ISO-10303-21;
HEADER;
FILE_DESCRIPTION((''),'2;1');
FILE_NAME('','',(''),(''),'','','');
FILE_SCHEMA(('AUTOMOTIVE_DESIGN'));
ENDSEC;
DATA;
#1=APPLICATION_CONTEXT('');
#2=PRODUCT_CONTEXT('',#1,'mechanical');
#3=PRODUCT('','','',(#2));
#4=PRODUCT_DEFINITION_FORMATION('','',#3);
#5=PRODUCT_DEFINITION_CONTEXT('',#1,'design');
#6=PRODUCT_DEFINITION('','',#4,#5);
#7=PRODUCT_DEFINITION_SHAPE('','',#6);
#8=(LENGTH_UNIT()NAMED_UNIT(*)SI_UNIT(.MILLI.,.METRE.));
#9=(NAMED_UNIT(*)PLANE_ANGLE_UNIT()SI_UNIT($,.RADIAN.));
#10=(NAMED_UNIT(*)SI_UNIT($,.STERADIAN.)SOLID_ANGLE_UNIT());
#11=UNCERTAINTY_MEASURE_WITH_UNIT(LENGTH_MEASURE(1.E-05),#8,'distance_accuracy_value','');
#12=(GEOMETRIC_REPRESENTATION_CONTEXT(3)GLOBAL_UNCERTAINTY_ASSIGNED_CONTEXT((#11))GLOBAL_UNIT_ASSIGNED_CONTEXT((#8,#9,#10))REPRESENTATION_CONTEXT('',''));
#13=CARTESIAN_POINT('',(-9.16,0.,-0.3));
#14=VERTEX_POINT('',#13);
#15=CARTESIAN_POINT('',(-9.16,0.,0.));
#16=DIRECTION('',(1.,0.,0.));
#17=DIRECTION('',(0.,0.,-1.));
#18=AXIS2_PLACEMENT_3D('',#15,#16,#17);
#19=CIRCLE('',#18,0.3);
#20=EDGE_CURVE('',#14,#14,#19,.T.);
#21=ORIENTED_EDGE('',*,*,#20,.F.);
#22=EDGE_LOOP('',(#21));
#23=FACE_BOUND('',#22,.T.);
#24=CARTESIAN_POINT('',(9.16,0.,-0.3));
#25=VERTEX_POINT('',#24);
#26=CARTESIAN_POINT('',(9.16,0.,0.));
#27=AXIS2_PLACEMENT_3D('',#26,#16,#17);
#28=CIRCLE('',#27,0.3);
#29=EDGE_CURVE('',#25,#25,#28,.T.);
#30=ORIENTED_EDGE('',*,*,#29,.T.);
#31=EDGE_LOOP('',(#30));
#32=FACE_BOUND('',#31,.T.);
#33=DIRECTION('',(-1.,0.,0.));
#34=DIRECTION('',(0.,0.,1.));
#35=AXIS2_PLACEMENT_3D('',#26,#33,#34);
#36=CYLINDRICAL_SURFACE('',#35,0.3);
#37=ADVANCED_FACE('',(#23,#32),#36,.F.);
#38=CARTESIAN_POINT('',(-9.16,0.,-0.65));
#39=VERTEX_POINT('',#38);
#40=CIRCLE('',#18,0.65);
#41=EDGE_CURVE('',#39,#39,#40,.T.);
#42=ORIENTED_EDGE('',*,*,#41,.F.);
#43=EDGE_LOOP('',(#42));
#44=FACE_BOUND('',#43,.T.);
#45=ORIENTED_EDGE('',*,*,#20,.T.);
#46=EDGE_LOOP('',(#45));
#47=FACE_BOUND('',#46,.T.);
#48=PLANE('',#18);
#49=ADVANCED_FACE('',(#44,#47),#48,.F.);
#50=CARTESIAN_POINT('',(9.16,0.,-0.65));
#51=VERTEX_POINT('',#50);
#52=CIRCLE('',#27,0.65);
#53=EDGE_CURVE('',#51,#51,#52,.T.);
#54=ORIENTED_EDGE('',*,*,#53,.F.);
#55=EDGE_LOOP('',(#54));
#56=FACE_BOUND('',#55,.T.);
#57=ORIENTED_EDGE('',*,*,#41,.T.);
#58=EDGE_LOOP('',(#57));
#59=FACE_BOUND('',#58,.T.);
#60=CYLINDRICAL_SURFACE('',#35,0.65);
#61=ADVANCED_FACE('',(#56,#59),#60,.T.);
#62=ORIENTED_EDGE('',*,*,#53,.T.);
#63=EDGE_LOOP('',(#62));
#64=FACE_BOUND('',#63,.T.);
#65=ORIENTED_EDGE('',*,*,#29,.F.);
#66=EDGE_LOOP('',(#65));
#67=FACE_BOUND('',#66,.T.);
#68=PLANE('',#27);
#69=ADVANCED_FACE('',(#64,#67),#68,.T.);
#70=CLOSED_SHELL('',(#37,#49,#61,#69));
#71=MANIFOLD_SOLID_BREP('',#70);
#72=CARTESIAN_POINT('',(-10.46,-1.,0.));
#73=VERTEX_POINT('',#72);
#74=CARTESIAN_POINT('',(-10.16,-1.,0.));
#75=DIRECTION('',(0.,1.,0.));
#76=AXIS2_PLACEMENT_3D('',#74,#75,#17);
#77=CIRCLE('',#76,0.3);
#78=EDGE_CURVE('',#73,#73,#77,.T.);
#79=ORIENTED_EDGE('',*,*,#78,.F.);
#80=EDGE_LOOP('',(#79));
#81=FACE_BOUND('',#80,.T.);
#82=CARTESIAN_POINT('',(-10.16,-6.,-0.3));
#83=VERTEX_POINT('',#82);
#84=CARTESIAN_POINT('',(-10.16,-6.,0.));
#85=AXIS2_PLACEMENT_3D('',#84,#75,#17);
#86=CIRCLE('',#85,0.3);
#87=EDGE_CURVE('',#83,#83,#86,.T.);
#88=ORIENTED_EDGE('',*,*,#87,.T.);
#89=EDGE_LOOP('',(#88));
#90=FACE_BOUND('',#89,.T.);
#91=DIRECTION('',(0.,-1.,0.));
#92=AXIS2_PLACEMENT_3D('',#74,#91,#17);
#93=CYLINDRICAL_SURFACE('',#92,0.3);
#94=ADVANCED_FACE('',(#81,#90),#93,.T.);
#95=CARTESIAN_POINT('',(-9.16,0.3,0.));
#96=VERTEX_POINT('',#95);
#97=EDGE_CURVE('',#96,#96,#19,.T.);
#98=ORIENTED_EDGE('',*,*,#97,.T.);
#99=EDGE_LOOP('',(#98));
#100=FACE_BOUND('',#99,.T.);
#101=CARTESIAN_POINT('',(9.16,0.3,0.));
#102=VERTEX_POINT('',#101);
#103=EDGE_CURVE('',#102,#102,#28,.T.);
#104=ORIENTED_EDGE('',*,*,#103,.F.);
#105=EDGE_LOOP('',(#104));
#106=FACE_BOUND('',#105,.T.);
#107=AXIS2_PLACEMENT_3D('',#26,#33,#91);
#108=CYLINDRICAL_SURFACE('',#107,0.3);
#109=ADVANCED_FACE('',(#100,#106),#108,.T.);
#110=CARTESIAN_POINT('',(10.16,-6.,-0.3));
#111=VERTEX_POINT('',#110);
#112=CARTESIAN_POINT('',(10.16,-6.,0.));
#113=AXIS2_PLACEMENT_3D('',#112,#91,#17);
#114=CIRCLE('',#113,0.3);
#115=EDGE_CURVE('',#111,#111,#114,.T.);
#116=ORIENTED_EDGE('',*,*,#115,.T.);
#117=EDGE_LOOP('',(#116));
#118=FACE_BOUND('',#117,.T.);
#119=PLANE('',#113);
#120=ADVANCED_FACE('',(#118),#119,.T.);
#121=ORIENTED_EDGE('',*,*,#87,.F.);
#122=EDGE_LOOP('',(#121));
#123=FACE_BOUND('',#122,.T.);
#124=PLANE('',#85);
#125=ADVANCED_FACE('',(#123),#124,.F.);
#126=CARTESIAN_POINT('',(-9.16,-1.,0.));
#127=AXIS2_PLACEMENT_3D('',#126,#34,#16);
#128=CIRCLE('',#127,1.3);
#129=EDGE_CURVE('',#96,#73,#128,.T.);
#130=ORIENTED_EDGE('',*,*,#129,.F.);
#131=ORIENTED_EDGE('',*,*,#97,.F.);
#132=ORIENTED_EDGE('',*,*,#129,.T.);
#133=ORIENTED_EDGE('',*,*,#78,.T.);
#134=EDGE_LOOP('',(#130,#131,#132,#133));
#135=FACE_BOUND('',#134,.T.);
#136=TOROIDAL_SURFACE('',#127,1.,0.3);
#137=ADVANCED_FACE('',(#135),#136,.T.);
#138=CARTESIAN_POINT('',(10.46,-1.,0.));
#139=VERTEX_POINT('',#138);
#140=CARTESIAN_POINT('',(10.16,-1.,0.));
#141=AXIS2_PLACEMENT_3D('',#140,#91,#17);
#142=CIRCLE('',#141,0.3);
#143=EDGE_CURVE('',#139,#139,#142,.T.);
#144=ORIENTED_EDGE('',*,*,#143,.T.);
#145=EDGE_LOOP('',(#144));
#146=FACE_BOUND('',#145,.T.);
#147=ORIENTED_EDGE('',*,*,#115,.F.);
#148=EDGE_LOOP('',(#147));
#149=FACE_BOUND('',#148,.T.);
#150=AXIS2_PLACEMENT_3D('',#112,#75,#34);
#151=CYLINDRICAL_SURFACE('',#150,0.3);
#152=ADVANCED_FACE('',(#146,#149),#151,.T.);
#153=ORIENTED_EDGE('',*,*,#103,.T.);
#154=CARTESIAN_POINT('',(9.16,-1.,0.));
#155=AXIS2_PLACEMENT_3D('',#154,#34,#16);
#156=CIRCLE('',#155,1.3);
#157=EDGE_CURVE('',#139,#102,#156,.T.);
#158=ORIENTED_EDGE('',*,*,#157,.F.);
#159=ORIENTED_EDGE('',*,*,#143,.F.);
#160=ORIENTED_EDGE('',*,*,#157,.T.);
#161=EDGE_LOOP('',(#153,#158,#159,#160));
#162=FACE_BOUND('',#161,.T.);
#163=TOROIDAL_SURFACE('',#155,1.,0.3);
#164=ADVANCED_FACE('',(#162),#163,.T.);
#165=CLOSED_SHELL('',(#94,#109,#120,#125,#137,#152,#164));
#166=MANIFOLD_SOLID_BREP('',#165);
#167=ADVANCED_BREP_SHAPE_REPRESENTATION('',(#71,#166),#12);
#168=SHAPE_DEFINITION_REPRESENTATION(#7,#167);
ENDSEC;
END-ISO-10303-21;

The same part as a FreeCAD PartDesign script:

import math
import FreeCAD as App
import Part
import Sketcher
from FreeCAD import Vector
Q = App.Units.Quantity

doc = App.newDocument("Part")
params = doc.addObject("Spreadsheet::Sheet", "Params")
for row, (alias, value) in enumerate([
    ("sketch1_diameter", "0.6 mm"),
    ("sketch2_radius", "1 mm"),
    ("sketch2_height", "5 mm"),
    ("sketch2_width", "18.32 mm"),
    ("sketch3_diameter", "1.3 mm"),
    ("sketch3_diameter2", "0.6 mm"),
    ("pad1_length", "9.16 mm"),
    ("pad1_length2", "9.16 mm"),
], start=1):
    params.set(f"A{row}", alias)
    params.set(f"B{row}", "=" + value)
    params.setAlias(f"B{row}", alias)

body = doc.addObject("PartDesign::Body", "Body")

sketch1 = doc.addObject("Sketcher::SketchObject", "Sketch")
body.addObject(sketch1)
sketch1.AttachmentSupport = (doc.YZ_Plane, [""])
sketch1.MapMode = "FlatFace"
sketch1.addGeometry(Part.Circle(Vector(0, 0, 0), Vector(0, 0, 1), 0.3), False)
sketch1.addConstraint([
    Sketcher.Constraint("Coincident", 0, 3, -1, 1),
    Sketcher.Constraint("Diameter", 0, Q("0.6 mm")),
])
sketch1.setExpression("Constraints[1]", "Params.sketch1_diameter")

sketch2 = doc.addObject("Sketcher::SketchObject", "Sketch001")
body.addObject(sketch2)
sketch2.AttachmentSupport = (doc.XY_Plane, [""])
sketch2.MapMode = "FlatFace"
sketch2.addGeometry([
    Part.LineSegment(Vector(-10.2, -6, 0), Vector(-10.2, -1, 0)),
    Part.ArcOfCircle(Part.Circle(Vector(-9.2, -1, 0), Vector(0, 0, 1), 1), math.radians(90), math.radians(180)),
    Part.LineSegment(Vector(-9.2, 0, 0), Vector(9.2, 0, 0)),
    Part.ArcOfCircle(Part.Circle(Vector(9.2, -1, 0), Vector(0, 0, 1), 1), math.radians(0), math.radians(90)),
    Part.LineSegment(Vector(10.2, -1, 0), Vector(10.2, -6, 0)),
], False)
sketch2.addConstraint([
    Sketcher.Constraint("Tangent", 0, 2, 1, 2),
    Sketcher.Constraint("Tangent", 1, 1, 2, 1),
    Sketcher.Constraint("Tangent", 2, 2, 3, 2),
    Sketcher.Constraint("Tangent", 3, 1, 4, 1),
    Sketcher.Constraint("Vertical", 0),
    Sketcher.Constraint("Horizontal", 2),
    Sketcher.Constraint("Vertical", 4),
    Sketcher.Constraint("Equal", 1, 3),
    Sketcher.Constraint("Symmetric", 1, 1, 2, 2, -1, 1),
    Sketcher.Constraint("Horizontal", 0, 1, 4, 2),
    Sketcher.Constraint("Radius", 1, Q("1 mm")),
    Sketcher.Constraint("DistanceY", 0, 1, 0, 2, Q("5 mm")),
    Sketcher.Constraint("DistanceX", 2, 1, 2, 2, Q("18.32 mm")),
])
sketch2.setExpression("Constraints[10]", "Params.sketch2_radius")
sketch2.setExpression("Constraints[11]", "Params.sketch2_height")
sketch2.setExpression("Constraints[12]", "Params.sketch2_width")
doc.recompute()

additivepipe = doc.addObject("PartDesign::AdditivePipe", "AdditivePipe")
body.addObject(additivepipe)
additivepipe.Profile = sketch1
additivepipe.Spine = (sketch2, ["Edge1", "Edge2", "Edge3", "Edge4", "Edge5"])
body2 = doc.addObject("PartDesign::Body", "Body001")

sketch3 = doc.addObject("Sketcher::SketchObject", "Sketch002")
body2.addObject(sketch3)
sketch3.AttachmentSupport = (doc.getObject("YZ_Plane001"), [""])
sketch3.MapMode = "FlatFace"
sketch3.addGeometry([
    Part.Circle(Vector(0, 0, 0), Vector(0, 0, 1), 0.65),
    Part.Circle(Vector(0, 0, 0), Vector(0, 0, 1), 0.3),
], False)
sketch3.addConstraint([
    Sketcher.Constraint("Coincident", 0, 3, -1, 1),
    Sketcher.Constraint("Coincident", 1, 3, -1, 1),
    Sketcher.Constraint("Diameter", 0, Q("1.3 mm")),
    Sketcher.Constraint("Diameter", 1, Q("0.6 mm")),
])
sketch3.setExpression("Constraints[2]", "Params.sketch3_diameter")
sketch3.setExpression("Constraints[3]", "Params.sketch3_diameter2")
pad1 = doc.addObject("PartDesign::Pad", "Pad")
body2.addObject(pad1)
pad1.Profile = sketch3
pad1.Type = "TwoLengths"
pad1.setExpression("Length", "Params.pad1_length")
pad1.setExpression("Length2", "Params.pad1_length2")

doc.recompute()
